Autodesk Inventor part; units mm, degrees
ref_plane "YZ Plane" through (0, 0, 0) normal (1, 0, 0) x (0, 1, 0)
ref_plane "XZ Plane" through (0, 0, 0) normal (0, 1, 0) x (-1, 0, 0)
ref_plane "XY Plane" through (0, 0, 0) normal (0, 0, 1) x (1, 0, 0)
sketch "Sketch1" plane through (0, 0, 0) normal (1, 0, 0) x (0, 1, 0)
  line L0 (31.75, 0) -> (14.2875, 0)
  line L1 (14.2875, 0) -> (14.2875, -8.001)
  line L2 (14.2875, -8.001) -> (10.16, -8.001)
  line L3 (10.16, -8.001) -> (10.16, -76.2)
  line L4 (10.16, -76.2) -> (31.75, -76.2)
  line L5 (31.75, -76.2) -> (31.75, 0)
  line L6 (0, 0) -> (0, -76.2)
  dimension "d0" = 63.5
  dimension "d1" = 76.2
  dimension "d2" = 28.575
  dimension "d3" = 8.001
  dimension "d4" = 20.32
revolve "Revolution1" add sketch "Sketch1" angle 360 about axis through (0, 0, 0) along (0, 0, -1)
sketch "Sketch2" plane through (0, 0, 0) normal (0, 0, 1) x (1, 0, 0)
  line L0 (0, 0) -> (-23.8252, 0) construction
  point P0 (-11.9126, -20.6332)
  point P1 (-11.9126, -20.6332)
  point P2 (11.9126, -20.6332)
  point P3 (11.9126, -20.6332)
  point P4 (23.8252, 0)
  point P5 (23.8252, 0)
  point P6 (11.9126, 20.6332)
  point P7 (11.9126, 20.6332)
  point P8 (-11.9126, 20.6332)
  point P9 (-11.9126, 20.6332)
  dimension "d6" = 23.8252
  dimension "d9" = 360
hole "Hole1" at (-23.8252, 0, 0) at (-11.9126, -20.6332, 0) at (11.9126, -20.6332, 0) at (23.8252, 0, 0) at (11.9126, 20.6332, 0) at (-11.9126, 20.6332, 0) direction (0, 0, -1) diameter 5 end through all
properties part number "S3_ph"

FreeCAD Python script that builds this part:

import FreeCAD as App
import Part
import Sketcher

V = App.Vector
Q = App.Units.Quantity

doc = App.newDocument("Part")
body = doc.addObject("PartDesign::Body", "Body")

sketch1 = body.newObject("Sketcher::SketchObject", "Sketch")
sketch1.AttachmentSupport = (doc.getObject("YZ_Plane"), [""])
sketch1.MapMode = "FlatFace"
sketch1.addGeometry([
    Part.LineSegment(V(31.8, -76.2, 0), V(31.8, 0, 0)),
    Part.LineSegment(V(31.8, 0, 0), V(14.3, 0, 0)),
    Part.LineSegment(V(14.3, 0, 0), V(14.3, -8, 0)),
    Part.LineSegment(V(14.3, -8, 0), V(10.2, -8, 0)),
    Part.LineSegment(V(10.2, -8, 0), V(10.2, -76.2, 0)),
    Part.LineSegment(V(10.2, -76.2, 0), V(31.8, -76.2, 0)),
], False)
sketch1.addConstraint([
    Sketcher.Constraint("Coincident", 0, 2, 1, 1),
    Sketcher.Constraint("Coincident", 1, 2, 2, 1),
    Sketcher.Constraint("Coincident", 2, 2, 3, 1),
    Sketcher.Constraint("Coincident", 3, 2, 4, 1),
    Sketcher.Constraint("Coincident", 4, 2, 5, 1),
    Sketcher.Constraint("Coincident", 5, 2, 0, 1),
    Sketcher.Constraint("Vertical", 0),
    Sketcher.Constraint("Horizontal", 1),
    Sketcher.Constraint("Vertical", 2),
    Sketcher.Constraint("Horizontal", 3),
    Sketcher.Constraint("Vertical", 4),
    Sketcher.Constraint("Horizontal", 5),
    Sketcher.Constraint("PointOnObject", 0, 2, -1),
    Sketcher.Constraint("DistanceY", 0, 1, 0, 2, Q("3 in")),
    Sketcher.Constraint("DistanceY", 2, 2, 2, 1, Q("0.315 in")),
    Sketcher.Constraint("DistanceX", 5, 1, 5, 2, Q("0.85 in")),
    Sketcher.Constraint("DistanceX", -1, 1, 3, 2, Q("0.4 in")),
    Sketcher.Constraint("DistanceX", 1, 2, 1, 1, Q("0.6875 in")),
])
revolution = body.newObject("PartDesign::Revolution", "Revolution")
revolution.Profile = sketch1
revolution.ReferenceAxis = (sketch1, ["V_Axis"])
revolution.Angle = 360

sketch2 = body.newObject("Sketcher::SketchObject", "Sketch001")
sketch2.AttachmentSupport = (doc.getObject("XY_Plane"), [""])
sketch2.MapMode = "FlatFace"
sketch2.addGeometry([
    Part.Circle(V(-23.8, 0, 0), V(0, 0, 1), 2.5),
    Part.Circle(V(-11.9, -20.6, 0), V(0, 0, 1), 2.5),
    Part.Circle(V(11.9, -20.6, 0), V(0, 0, 1), 2.5),
    Part.Circle(V(23.8, 0, 0), V(0, 0, 1), 2.5),
    Part.Circle(V(11.9, 20.6, 0), V(0, 0, 1), 2.5),
    Part.Circle(V(-11.9, 20.6, 0), V(0, 0, 1), 2.5),
], False)
sketch2.addConstraint([
    Sketcher.Constraint("Equal", 0, 1),
    Sketcher.Constraint("Equal", 1, 2),
    Sketcher.Constraint("Equal", 2, 3),
    Sketcher.Constraint("Equal", 3, 4),
    Sketcher.Constraint("Equal", 4, 5),
    Sketcher.Constraint("Symmetric", 0, 3, 3, 3, -1, 1),
    Sketcher.Constraint("Symmetric", 1, 3, 4, 3, -1, 1),
    Sketcher.Constraint("Symmetric", 2, 3, 5, 3, -1, 1),
    Sketcher.Constraint("Symmetric", 1, 3, 2, 3, -2),
    Sketcher.Constraint("PointOnObject", 0, 3, -1),
    Sketcher.Constraint("Diameter", 0, 5.0),
    Sketcher.Constraint("DistanceX", 0, 3, -1, 1, Q("0.938 in")),
    Sketcher.Constraint("DistanceX", 1, 3, -1, 1, Q("0.469 in")),
    Sketcher.Constraint("DistanceY", 1, 3, -1, 1, 20.6332),
])
doc.recompute()
hole = body.newObject("PartDesign::Hole", "Hole")
hole.Profile = sketch2
hole.ThreadType = "None"
hole.Diameter = 5
hole.DepthType = "ThroughAll"

doc.recompute()
